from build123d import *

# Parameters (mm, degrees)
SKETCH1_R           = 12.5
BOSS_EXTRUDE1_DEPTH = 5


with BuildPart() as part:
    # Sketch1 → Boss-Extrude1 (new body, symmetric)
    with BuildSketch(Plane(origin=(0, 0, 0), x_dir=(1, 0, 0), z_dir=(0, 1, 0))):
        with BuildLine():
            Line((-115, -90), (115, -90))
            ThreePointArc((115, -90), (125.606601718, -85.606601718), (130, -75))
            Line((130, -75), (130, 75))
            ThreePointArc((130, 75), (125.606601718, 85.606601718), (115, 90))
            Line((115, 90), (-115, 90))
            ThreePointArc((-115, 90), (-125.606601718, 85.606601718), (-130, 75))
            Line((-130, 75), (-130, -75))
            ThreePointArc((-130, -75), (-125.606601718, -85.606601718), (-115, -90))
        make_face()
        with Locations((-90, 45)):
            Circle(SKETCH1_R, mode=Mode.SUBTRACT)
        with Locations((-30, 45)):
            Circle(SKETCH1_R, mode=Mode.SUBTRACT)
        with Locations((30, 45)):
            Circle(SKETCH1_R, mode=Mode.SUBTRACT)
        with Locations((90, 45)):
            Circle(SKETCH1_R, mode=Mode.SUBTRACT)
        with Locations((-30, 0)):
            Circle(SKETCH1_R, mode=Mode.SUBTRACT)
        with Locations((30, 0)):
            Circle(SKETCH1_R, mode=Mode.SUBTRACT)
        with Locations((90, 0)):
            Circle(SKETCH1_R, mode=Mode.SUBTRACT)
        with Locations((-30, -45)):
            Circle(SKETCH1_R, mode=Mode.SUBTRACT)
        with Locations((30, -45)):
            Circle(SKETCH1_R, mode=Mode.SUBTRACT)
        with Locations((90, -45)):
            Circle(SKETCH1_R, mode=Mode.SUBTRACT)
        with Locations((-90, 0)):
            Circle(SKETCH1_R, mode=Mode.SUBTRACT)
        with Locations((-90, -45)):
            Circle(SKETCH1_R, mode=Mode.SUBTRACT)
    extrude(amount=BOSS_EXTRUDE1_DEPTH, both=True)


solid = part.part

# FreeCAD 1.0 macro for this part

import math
import FreeCAD as App
import Part
import Sketcher
from FreeCAD import Vector
Q = App.Units.Quantity

doc = App.newDocument("Part")
params = doc.addObject("Spreadsheet::Sheet", "Params")
for row, (alias, value) in enumerate([
    ("sketch1_diameter", "25 mm"),
    ("sketch1_radius", "15 mm"),
    ("sketch1_width", "230 mm"),
    ("sketch1_height", "150 mm"),
    ("pad1_length", "10 mm"),
], start=1):
    params.set(f"A{row}", alias)
    params.set(f"B{row}", "=" + value)
    params.setAlias(f"B{row}", alias)

body = doc.addObject("PartDesign::Body", "Body")

sketch1 = body.newObject("Sketcher::SketchObject", "Sketch")
sketch1.AttachmentSupport = (doc.getObject("XZ_Plane"), [""])
sketch1.MapMode = "FlatFace"
sketch1.addGeometry(Part.LineSegment(Vector(-115, 90, 0), Vector(115, 90, 0)), False)
sketch1.addGeometry(Part.ArcOfCircle(Part.Circle(Vector(115, 75, 0), Vector(0, 0, 1), 15), math.radians(0), math.radians(90)), False)
sketch1.addGeometry(Part.LineSegment(Vector(130, 75, 0), Vector(130, -75, 0)), False)
sketch1.addGeometry(Part.ArcOfCircle(Part.Circle(Vector(115, -75, 0), Vector(0, 0, 1), 15), math.radians(-90), math.radians(0)), False)
sketch1.addGeometry(Part.LineSegment(Vector(115, -90, 0), Vector(-115, -90, 0)), False)
sketch1.addGeometry(Part.ArcOfCircle(Part.Circle(Vector(-115, -75, 0), Vector(0, 0, 1), 15), math.radians(180), math.radians(270)), False)
sketch1.addGeometry(Part.LineSegment(Vector(-130, -75, 0), Vector(-130, 75, 0)), False)
sketch1.addGeometry(Part.ArcOfCircle(Part.Circle(Vector(-115, 75, 0), Vector(0, 0, 1), 15), math.radians(90), math.radians(180)), False)
sketch1.addGeometry(Part.Circle(Vector(-90, 45, 0), Vector(0, 0, 1), 12.5), False)
sketch1.addGeometry(Part.Circle(Vector(-30, 45, 0), Vector(0, 0, 1), 12.5), False)
sketch1.addGeometry(Part.Circle(Vector(30, 45, 0), Vector(0, 0, 1), 12.5), False)
sketch1.addGeometry(Part.Circle(Vector(90, 45, 0), Vector(0, 0, 1), 12.5), False)
sketch1.addGeometry(Part.Circle(Vector(-90, 0, 0), Vector(0, 0, 1), 12.5), False)
sketch1.addGeometry(Part.Circle(Vector(-30, 0, 0), Vector(0, 0, 1), 12.5), False)
sketch1.addGeometry(Part.Circle(Vector(-90, -45, 0), Vector(0, 0, 1), 12.5), False)
sketch1.addGeometry(Part.Circle(Vector(-30, -45, 0), Vector(0, 0, 1), 12.5), False)
sketch1.addGeometry(Part.Circle(Vector(30, 0, 0), Vector(0, 0, 1), 12.5), False)
sketch1.addGeometry(Part.Circle(Vector(90, 0, 0), Vector(0, 0, 1), 12.5), False)
sketch1.addGeometry(Part.Circle(Vector(30, -45, 0), Vector(0, 0, 1), 12.5), False)
sketch1.addGeometry(Part.Circle(Vector(90, -45, 0), Vector(0, 0, 1), 12.5), False)
sketch1.addConstraint(Sketcher.Constraint("Tangent", 0, 2, 1, 2))
sketch1.addConstraint(Sketcher.Constraint("Tangent", 1, 1, 2, 1))
sketch1.addConstraint(Sketcher.Constraint("Tangent", 2, 2, 3, 2))
sketch1.addConstraint(Sketcher.Constraint("Tangent", 3, 1, 4, 1))
sketch1.addConstraint(Sketcher.Constraint("Tangent", 4, 2, 5, 2))
sketch1.addConstraint(Sketcher.Constraint("Tangent", 5, 1, 6, 1))
sketch1.addConstraint(Sketcher.Constraint("Tangent", 6, 2, 7, 2))
sketch1.addConstraint(Sketcher.Constraint("Tangent", 7, 1, 0, 1))
sketch1.addConstraint(Sketcher.Constraint("Horizontal", 0))
sketch1.addConstraint(Sketcher.Constraint("Vertical", 2))
sketch1.addConstraint(Sketcher.Constraint("Horizontal", 4))
sketch1.addConstraint(Sketcher.Constraint("Vertical", 6))
sketch1.addConstraint(Sketcher.Constraint("Equal", 1, 3))
sketch1.addConstraint(Sketcher.Constraint("Equal", 3, 5))
sketch1.addConstraint(Sketcher.Constraint("Equal", 5, 7))
sketch1.addConstraint(Sketcher.Constraint("Equal", 8, 9))
sketch1.addConstraint(Sketcher.Constraint("Equal", 9, 10))
sketch1.addConstraint(Sketcher.Constraint("Equal", 10, 11))
sketch1.addConstraint(Sketcher.Constraint("Equal", 11, 12))
sketch1.addConstraint(Sketcher.Constraint("Equal", 12, 13))
sketch1.addConstraint(Sketcher.Constraint("Equal", 13, 14))
sketch1.addConstraint(Sketcher.Constraint("Equal", 14, 15))
sketch1.addConstraint(Sketcher.Constraint("Equal", 15, 16))
sketch1.addConstraint(Sketcher.Constraint("Equal", 16, 17))
sketch1.addConstraint(Sketcher.Constraint("Equal", 17, 18))
sketch1.addConstraint(Sketcher.Constraint("Equal", 18, 19))
sketch1.addConstraint(Sketcher.Constraint("Symmetric", 1, 3, 5, 3, -1, 1))
sketch1.addConstraint(Sketcher.Constraint("Symmetric", 11, 3, 14, 3, -1, 1))
sketch1.addConstraint(Sketcher.Constraint("Symmetric", 10, 3, 15, 3, -1, 1))
sketch1.addConstraint(Sketcher.Constraint("Symmetric", 13, 3, 16, 3, -1, 1))
sketch1.addConstraint(Sketcher.Constraint("Symmetric", 12, 3, 17, 3, -1, 1))
sketch1.addConstraint(Sketcher.Constraint("Symmetric", 9, 3, 18, 3, -1, 1))
sketch1.addConstraint(Sketcher.Constraint("Symmetric", 8, 3, 19, 3, -1, 1))
sketch1.addConstraint(Sketcher.Constraint("Symmetric", 9, 3, 10, 3, -2))
sketch1.addConstraint(Sketcher.Constraint("Symmetric", 8, 3, 11, 3, -2))
sketch1.addConstraint(Sketcher.Constraint("PointOnObject", 12, 3, -1))
sketch1.addConstraint(Sketcher.Constraint("PointOnObject", 13, 3, -1))
sketch1.addConstraint(Sketcher.Constraint("Horizontal", 8, 3, 9, 3))
sketch1.addConstraint(Sketcher.Constraint("Vertical", 8, 3, 12, 3))
sketch1.addConstraint(Sketcher.Constraint("Vertical", 9, 3, 13, 3))
sketch1.addConstraint(Sketcher.Constraint("Diameter", 8, Q("25 mm")))
sketch1.addConstraint(Sketcher.Constraint("Radius", 1, Q("15 mm")))
sketch1.addConstraint(Sketcher.Constraint("DistanceX", 0, 1, 0, 2, Q("230 mm")))
sketch1.addConstraint(Sketcher.Constraint("DistanceY", 2, 2, 2, 1, Q("150 mm")))
sketch1.addConstraint(Sketcher.Constraint("DistanceX", 8, 3, -1, 1, Q("90 mm")))
sketch1.addConstraint(Sketcher.Constraint("DistanceY", -1, 1, 8, 3, Q("45 mm")))
sketch1.addConstraint(Sketcher.Constraint("DistanceX", 9, 3, -1, 1, Q("30 mm")))
sketch1.setExpression("Constraints[40]", "Params.sketch1_diameter")
sketch1.setExpression("Constraints[41]", "Params.sketch1_radius")
sketch1.setExpression("Constraints[42]", "Params.sketch1_width")
sketch1.setExpression("Constraints[43]", "Params.sketch1_height")
pad1 = body.newObject("PartDesign::Pad", "Pad")
pad1.Profile = sketch1
pad1.setExpression("Length", "Params.pad1_length")
pad1.Midplane = True

doc.recompute()
